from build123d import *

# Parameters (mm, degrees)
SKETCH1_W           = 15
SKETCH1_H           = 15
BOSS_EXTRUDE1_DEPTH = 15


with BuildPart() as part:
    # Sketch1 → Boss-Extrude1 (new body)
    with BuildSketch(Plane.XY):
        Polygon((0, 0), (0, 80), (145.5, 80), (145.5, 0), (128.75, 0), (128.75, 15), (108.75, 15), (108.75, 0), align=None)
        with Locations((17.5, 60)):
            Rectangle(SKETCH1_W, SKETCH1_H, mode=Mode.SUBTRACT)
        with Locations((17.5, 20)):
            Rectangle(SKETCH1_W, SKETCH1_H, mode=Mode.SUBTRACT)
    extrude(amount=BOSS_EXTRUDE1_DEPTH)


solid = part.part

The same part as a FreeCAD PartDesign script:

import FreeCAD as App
import Part
import Sketcher
from FreeCAD import Vector


def add_polygon(sketch, points):
    """Adds a closed chain of lines whose ends are joined by coincident constraints."""
    first, n = sketch.GeometryCount, len(points)
    for a, b in zip(points, points[1:] + points[:1]):
        sketch.addGeometry(Part.LineSegment(App.Vector(*a, 0), App.Vector(*b, 0)), False)
    for i in range(n):
        sketch.addConstraint(Sketcher.Constraint("Coincident", first + i, 2, first + (i + 1) % n, 1))

doc = App.newDocument("Part")
body = doc.addObject("PartDesign::Body", "Body")

# Sketch on XY plane
sketch1 = body.newObject("Sketcher::SketchObject", "Sketch")
sketch1.AttachmentSupport = (doc.getObject("XY_Plane"), [""])
sketch1.MapMode = "FlatFace"
add_polygon(sketch1, [(0, 80), (0, 0), (109, 0), (109, 15), (129, 15), (129, 0), (146, 0), (146, 80)])  # lines 0-7
add_polygon(sketch1, [(10, 12), (10, 28), (25, 28), (25, 12)])  # lines 8-11
add_polygon(sketch1, [(10, 52), (10, 68), (25, 68), (25, 52)])  # lines 12-15
sketch1.addConstraint(Sketcher.Constraint("Vertical", 0))
sketch1.addConstraint(Sketcher.Constraint("Horizontal", 1))
sketch1.addConstraint(Sketcher.Constraint("Vertical", 2))
sketch1.addConstraint(Sketcher.Constraint("Horizontal", 3))
sketch1.addConstraint(Sketcher.Constraint("Vertical", 4))
sketch1.addConstraint(Sketcher.Constraint("Horizontal", 5))
sketch1.addConstraint(Sketcher.Constraint("Vertical", 6))
sketch1.addConstraint(Sketcher.Constraint("Horizontal", 7))
sketch1.addConstraint(Sketcher.Constraint("Vertical", 8))
sketch1.addConstraint(Sketcher.Constraint("Horizontal", 9))
sketch1.addConstraint(Sketcher.Constraint("Vertical", 10))
sketch1.addConstraint(Sketcher.Constraint("Horizontal", 11))
sketch1.addConstraint(Sketcher.Constraint("Vertical", 12))
sketch1.addConstraint(Sketcher.Constraint("Horizontal", 13))
sketch1.addConstraint(Sketcher.Constraint("Vertical", 14))
sketch1.addConstraint(Sketcher.Constraint("Horizontal", 15))
sketch1.addConstraint(Sketcher.Constraint("Coincident", 0, 2, -1, 1))
sketch1.addConstraint(Sketcher.Constraint("PointOnObject", 4, 2, -1))
sketch1.addConstraint(Sketcher.Constraint("Vertical", 11, 2, 12, 2))
sketch1.addConstraint(Sketcher.Constraint("Vertical", 10, 2, 13, 2))
sketch1.addConstraint(Sketcher.Constraint("Equal", 15, 2))
sketch1.addConstraint(Sketcher.Constraint("Equal", 4, 8))
sketch1.addConstraint(Sketcher.Constraint("Equal", 10, 12))
sketch1.addConstraint(Sketcher.Constraint("DistanceX", 3, 1, 3, 2, 20.0))
sketch1.addConstraint(Sketcher.Constraint("DistanceX", 9, 1, 9, 2, 15.0))
sketch1.addConstraint(Sketcher.Constraint("DistanceY", 0, 2, 0, 1, 80.0))
sketch1.addConstraint(Sketcher.Constraint("DistanceX", 7, 2, 7, 1, 145.5))
sketch1.addConstraint(Sketcher.Constraint("DistanceX", -1, 1, 8, 2, 10.0))
sketch1.addConstraint(Sketcher.Constraint("DistanceY", 8, 2, 12, 2, 40.0))
sketch1.addConstraint(Sketcher.Constraint("DistanceX", 1, 1, 1, 2, 108.75))
sketch1.addConstraint(Sketcher.Constraint("DistanceY", -1, 1, 8, 2, 27.5))
pad1 = body.newObject("PartDesign::Pad", "Pad")
pad1.Profile = sketch1
pad1.Length = 15

doc.recompute()
